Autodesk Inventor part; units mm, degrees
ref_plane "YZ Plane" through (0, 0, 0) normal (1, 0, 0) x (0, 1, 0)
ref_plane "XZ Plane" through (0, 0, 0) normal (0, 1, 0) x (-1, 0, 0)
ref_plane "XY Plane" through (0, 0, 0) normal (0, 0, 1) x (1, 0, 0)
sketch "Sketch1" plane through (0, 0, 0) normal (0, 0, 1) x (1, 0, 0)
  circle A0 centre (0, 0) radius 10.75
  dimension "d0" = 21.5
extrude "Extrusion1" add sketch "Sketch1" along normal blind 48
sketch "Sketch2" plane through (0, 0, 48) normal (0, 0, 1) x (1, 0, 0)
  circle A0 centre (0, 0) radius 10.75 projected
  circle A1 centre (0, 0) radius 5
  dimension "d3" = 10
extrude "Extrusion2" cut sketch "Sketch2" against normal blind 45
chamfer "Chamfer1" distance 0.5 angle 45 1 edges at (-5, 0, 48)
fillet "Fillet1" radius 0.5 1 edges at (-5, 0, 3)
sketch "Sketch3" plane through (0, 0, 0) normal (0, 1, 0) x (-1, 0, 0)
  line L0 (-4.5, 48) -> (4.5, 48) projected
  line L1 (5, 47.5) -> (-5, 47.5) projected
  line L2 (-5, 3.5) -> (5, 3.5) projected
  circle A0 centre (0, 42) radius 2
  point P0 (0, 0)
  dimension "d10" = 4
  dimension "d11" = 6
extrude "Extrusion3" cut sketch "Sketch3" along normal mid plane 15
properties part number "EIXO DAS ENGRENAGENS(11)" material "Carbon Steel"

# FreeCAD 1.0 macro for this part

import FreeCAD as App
import Part
import Sketcher
from FreeCAD import Vector
Q = App.Units.Quantity


def edges_at(feature, points):
    """Names of the edges that pass closest to the given points."""
    edges = feature.Shape.Edges
    near = lambda p: min(range(len(edges)), key=lambda i: edges[i].distToShape(Part.Vertex(*p))[0])
    return sorted({f"Edge{near(p) + 1}" for p in points})

doc = App.newDocument("Part")
body = doc.addObject("PartDesign::Body", "Body")

sketch1 = doc.addObject("Sketcher::SketchObject", "Sketch")
body.addObject(sketch1)
sketch1.AttachmentSupport = (doc.XY_Plane, [""])
sketch1.MapMode = "FlatFace"
sketch1.addGeometry(Part.Circle(Vector(0, 0, 0), Vector(0, 0, 1), 11), False)
sketch1.addConstraint([
    Sketcher.Constraint("Coincident", 0, 3, -1, 1),
    Sketcher.Constraint("Diameter", 0, Q("21.5 mm")),
])
pad1 = doc.addObject("PartDesign::Pad", "Pad")
body.addObject(pad1)
pad1.Profile = sketch1
pad1.Length = 48

sketch2 = doc.addObject("Sketcher::SketchObject", "Sketch001")
body.addObject(sketch2)
sketch2.AttachmentSupport = (doc.XY_Plane, [""])
sketch2.MapMode = "FlatFace"
sketch2.AttachmentOffset = App.Placement(Vector(0, 0, 48), App.Rotation())
sketch2.addGeometry([
    Part.Circle(Vector(0, 0, 0), Vector(0, 0, 1), 11),
    Part.Circle(Vector(0, 0, 0), Vector(0, 0, 1), 5),
], False)
sketch2.addConstraint([
    Sketcher.Constraint("Coincident", 0, 3, -1, 1),
    Sketcher.Constraint("Coincident", 1, 3, -1, 1),
    Sketcher.Constraint("Diameter", 1, Q("10 mm")),
    Sketcher.Constraint("Diameter", 0, Q("21.5 mm")),
])
pocket1 = doc.addObject("PartDesign::Pocket", "Pocket")
body.addObject(pocket1)
pocket1.Profile = sketch2
pocket1.Length = 45
doc.recompute()

chamfer = doc.addObject("PartDesign::Chamfer", "Chamfer")
body.addObject(chamfer)
chamfer.Base = (pocket1, edges_at(pocket1, [(-5, 0, 48)]))
chamfer.Size = 0.5
doc.recompute()

fillet = doc.addObject("PartDesign::Fillet", "Fillet")
body.addObject(fillet)
fillet.Base = (chamfer, edges_at(chamfer, [(-5, 0, 3)]))
fillet.Radius = 0.5

sketch3 = doc.addObject("Sketcher::SketchObject", "Sketch002")
body.addObject(sketch3)
sketch3.AttachmentSupport = (doc.XZ_Plane, [""])
sketch3.MapMode = "FlatFace"
sketch3.addGeometry(Part.Circle(Vector(0, 42, 0), Vector(0, 0, 1), 2), False)
sketch3.addConstraint([
    Sketcher.Constraint("PointOnObject", 0, 3, -2),
    Sketcher.Constraint("Diameter", 0, Q("4 mm")),
    Sketcher.Constraint("DistanceY", -1, 1, 0, 3, Q("42 mm")),
])
pocket2 = doc.addObject("PartDesign::Pocket", "Pocket001")
body.addObject(pocket2)
pocket2.Profile = sketch3
pocket2.Length = 15
pocket2.Midplane = True

doc.recompute()
